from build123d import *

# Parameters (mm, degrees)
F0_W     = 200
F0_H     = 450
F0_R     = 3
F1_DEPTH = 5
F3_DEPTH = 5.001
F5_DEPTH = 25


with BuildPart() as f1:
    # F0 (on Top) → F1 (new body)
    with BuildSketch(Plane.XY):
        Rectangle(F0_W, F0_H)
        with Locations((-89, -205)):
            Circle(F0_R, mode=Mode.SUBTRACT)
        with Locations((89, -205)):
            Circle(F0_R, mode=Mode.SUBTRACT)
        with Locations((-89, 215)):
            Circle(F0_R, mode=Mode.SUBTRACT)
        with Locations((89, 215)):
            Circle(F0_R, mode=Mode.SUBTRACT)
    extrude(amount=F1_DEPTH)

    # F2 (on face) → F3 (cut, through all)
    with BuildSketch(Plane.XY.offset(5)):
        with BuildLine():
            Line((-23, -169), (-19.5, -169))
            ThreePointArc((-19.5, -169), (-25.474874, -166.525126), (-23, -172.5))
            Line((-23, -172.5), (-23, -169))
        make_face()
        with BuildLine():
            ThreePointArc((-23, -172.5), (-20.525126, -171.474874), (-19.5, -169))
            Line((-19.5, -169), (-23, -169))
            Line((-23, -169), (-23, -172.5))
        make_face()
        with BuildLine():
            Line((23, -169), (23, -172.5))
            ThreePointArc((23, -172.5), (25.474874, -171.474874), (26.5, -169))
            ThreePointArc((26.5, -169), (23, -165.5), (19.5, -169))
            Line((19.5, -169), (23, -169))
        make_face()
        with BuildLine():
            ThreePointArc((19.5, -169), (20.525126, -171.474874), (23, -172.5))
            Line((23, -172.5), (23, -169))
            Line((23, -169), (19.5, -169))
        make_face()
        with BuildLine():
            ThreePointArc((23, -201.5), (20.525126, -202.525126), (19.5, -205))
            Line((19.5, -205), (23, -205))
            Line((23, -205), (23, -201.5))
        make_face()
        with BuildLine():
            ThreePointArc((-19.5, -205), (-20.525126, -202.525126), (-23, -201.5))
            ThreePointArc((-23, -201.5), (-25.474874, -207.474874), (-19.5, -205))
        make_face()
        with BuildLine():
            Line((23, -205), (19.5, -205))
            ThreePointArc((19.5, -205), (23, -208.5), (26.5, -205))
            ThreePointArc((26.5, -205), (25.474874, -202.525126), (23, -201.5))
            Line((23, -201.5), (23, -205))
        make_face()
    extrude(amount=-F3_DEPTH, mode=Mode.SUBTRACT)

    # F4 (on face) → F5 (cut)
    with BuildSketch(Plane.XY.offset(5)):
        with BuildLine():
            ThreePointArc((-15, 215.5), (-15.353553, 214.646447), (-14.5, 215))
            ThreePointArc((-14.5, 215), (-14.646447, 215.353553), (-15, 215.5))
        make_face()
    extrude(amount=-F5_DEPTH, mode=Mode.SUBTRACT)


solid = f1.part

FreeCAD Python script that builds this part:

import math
import FreeCAD as App
import Part
import Sketcher
from FreeCAD import Vector


def add_polygon(sketch, points):
    """Adds a closed chain of lines whose ends are joined by coincident constraints."""
    first, n = sketch.GeometryCount, len(points)
    for a, b in zip(points, points[1:] + points[:1]):
        sketch.addGeometry(Part.LineSegment(App.Vector(*a, 0), App.Vector(*b, 0)), False)
    for i in range(n):
        sketch.addConstraint(Sketcher.Constraint("Coincident", first + i, 2, first + (i + 1) % n, 1))

doc = App.newDocument("Part")
body = doc.addObject("PartDesign::Body", "Body")

# Sketch on XY plane
sketch1 = doc.addObject("Sketcher::SketchObject", "Sketch")
body.addObject(sketch1)
sketch1.AttachmentSupport = (doc.XY_Plane, [""])
sketch1.MapMode = "FlatFace"
add_polygon(sketch1, [(-100, 225), (-100, -225), (100, -225), (100, 225)])  # lines 0-3
sketch1.addGeometry(Part.Circle(Vector(-89, -205, 0), Vector(0, 0, 1), 3), False)  # 4
sketch1.addGeometry(Part.Circle(Vector(89, -205, 0), Vector(0, 0, 1), 3), False)  # 5
sketch1.addGeometry(Part.Circle(Vector(-89, 215, 0), Vector(0, 0, 1), 3), False)  # 6
sketch1.addGeometry(Part.Circle(Vector(89, 215, 0), Vector(0, 0, 1), 3), False)  # 7
sketch1.addConstraint([
    Sketcher.Constraint("Vertical", 0),
    Sketcher.Constraint("Horizontal", 1),
    Sketcher.Constraint("Vertical", 2),
    Sketcher.Constraint("Horizontal", 3),
    Sketcher.Constraint("Equal", 4, 5),
    Sketcher.Constraint("Equal", 5, 6),
    Sketcher.Constraint("Equal", 6, 7),
    Sketcher.Constraint("Symmetric", 0, 2, 2, 2, -1, 1),
    Sketcher.Constraint("Symmetric", 4, 3, 5, 3, -2),
    Sketcher.Constraint("Symmetric", 6, 3, 7, 3, -2),
    Sketcher.Constraint("Vertical", 4, 3, 6, 3),
    Sketcher.Constraint("Diameter", 4, 6.0),
    Sketcher.Constraint("DistanceX", 1, 1, 1, 2, 200.0),
    Sketcher.Constraint("DistanceY", 0, 2, 0, 1, 450.0),
    Sketcher.Constraint("DistanceX", 4, 3, -1, 1, 89.0),
    Sketcher.Constraint("DistanceY", 4, 3, -1, 1, 205.0),
    Sketcher.Constraint("DistanceY", -1, 1, 6, 3, 215.0),
])
pad1 = doc.addObject("PartDesign::Pad", "Pad")
body.addObject(pad1)
pad1.Profile = sketch1
pad1.Length = 5

# Sketch on XY plane
sketch2 = doc.addObject("Sketcher::SketchObject", "Sketch001")
body.addObject(sketch2)
sketch2.AttachmentSupport = (doc.XY_Plane, [""])
sketch2.MapMode = "FlatFace"
sketch2.AttachmentOffset = App.Placement(Vector(0, 0, 5), App.Rotation())
sketch2.addGeometry([
    Part.ArcOfCircle(Part.Circle(Vector(-23, -169, 0), Vector(0, 0, 1), 3.5), math.radians(0), math.radians(270)),  # 0
    Part.ArcOfCircle(Part.Circle(Vector(-23, -169, 0), Vector(0, 0, 1), 3.5), math.radians(-90), math.radians(0)),  # 1
    Part.ArcOfCircle(Part.Circle(Vector(23, -169, 0), Vector(0, 0, 1), 3.5), math.radians(-90), math.radians(0)),  # 2
    Part.ArcOfCircle(Part.Circle(Vector(23, -169, 0), Vector(0, 0, 1), 3.5), math.radians(0), math.radians(180)),  # 3
    Part.ArcOfCircle(Part.Circle(Vector(23, -169, 0), Vector(0, 0, 1), 3.5), math.radians(180), math.radians(270)),  # 4
    Part.ArcOfCircle(Part.Circle(Vector(23, -205, 0), Vector(0, 0, 1), 3.5), math.radians(90), math.radians(180)),  # 5
    Part.ArcOfCircle(Part.Circle(Vector(23, -205, 0), Vector(0, 0, 1), 3.5), math.radians(180), math.radians(360)),  # 6
    Part.ArcOfCircle(Part.Circle(Vector(23, -205, 0), Vector(0, 0, 1), 3.5), math.radians(0), math.radians(90)),  # 7
    Part.ArcOfCircle(Part.Circle(Vector(-23, -205, 0), Vector(0, 0, 1), 3.5), math.radians(0), math.radians(90)),  # 8
    Part.ArcOfCircle(Part.Circle(Vector(-23, -205, 0), Vector(0, 0, 1), 3.5), math.radians(90), math.radians(360)),  # 9
], False)
sketch2.addConstraint([
    Sketcher.Constraint("Tangent", 0, 1, 1, 2),
    Sketcher.Constraint("Coincident", 1, 1, 0, 2),
    Sketcher.Constraint("Tangent", 2, 2, 3, 1),
    Sketcher.Constraint("Tangent", 3, 2, 4, 1),
    Sketcher.Constraint("Tangent", 4, 2, 2, 1),
    Sketcher.Constraint("Tangent", 5, 2, 6, 1),
    Sketcher.Constraint("Tangent", 6, 2, 7, 1),
    Sketcher.Constraint("Tangent", 7, 2, 5, 1),
    Sketcher.Constraint("Tangent", 8, 1, 9, 2),
    Sketcher.Constraint("Coincident", 9, 1, 8, 2),
    Sketcher.Constraint("Equal", 1, 2),
    Sketcher.Constraint("Equal", 4, 5),
    Sketcher.Constraint("Equal", 7, 8),
    Sketcher.Constraint("Symmetric", 0, 3, 2, 3, -2),
    Sketcher.Constraint("Symmetric", 5, 3, 8, 3, -2),
    Sketcher.Constraint("Horizontal", 4, 3, 0, 1),
    Sketcher.Constraint("Horizontal", 0, 1, 2, 2),
    Sketcher.Constraint("Horizontal", 2, 2, 3, 2),
    Sketcher.Constraint("Horizontal", 9, 3, 5, 2),
    Sketcher.Constraint("Horizontal", 5, 2, 6, 2),
    Sketcher.Constraint("Horizontal", 6, 2, 8, 1),
    Sketcher.Constraint("Vertical", 4, 3, 5, 3),
    Sketcher.Constraint("Vertical", 9, 3, 1, 1),
    Sketcher.Constraint("Vertical", 7, 3, 4, 2),
    Sketcher.Constraint("Vertical", 4, 2, 7, 2),
    Sketcher.Constraint("Vertical", 1, 1, 9, 1),
    Sketcher.Constraint("Radius", 0, 3.5),
    Sketcher.Constraint("DistanceX", 0, 3, -1, 1, 23.0),
    Sketcher.Constraint("DistanceY", 0, 3, -1, 1, 169.0),
    Sketcher.Constraint("DistanceY", 5, 3, -1, 1, 204.999999),
])
pocket1 = doc.addObject("PartDesign::Pocket", "Pocket")
body.addObject(pocket1)
pocket1.Profile = sketch2
pocket1.Type = "ThroughAll"

# Sketch on XY plane
sketch3 = doc.addObject("Sketcher::SketchObject", "Sketch002")
body.addObject(sketch3)
sketch3.AttachmentSupport = (doc.XY_Plane, [""])
sketch3.MapMode = "FlatFace"
sketch3.AttachmentOffset = App.Placement(Vector(0, 0, 5), App.Rotation())
sketch3.addGeometry([
    Part.ArcOfCircle(Part.Circle(Vector(-15, 215, 0), Vector(0, 0, 1), 0.5), math.radians(90), math.radians(360)),
    Part.ArcOfCircle(Part.Circle(Vector(-15, 215, 0), Vector(0, 0, 1), 0.5), math.radians(0), math.radians(90)),
], False)
sketch3.addConstraint([
    Sketcher.Constraint("Coincident", 0, 1, 1, 2),
    Sketcher.Constraint("Coincident", 1, 1, 0, 2),
    Sketcher.Constraint("Equal", 0, 1),
    Sketcher.Constraint("Horizontal", 0, 3, 1, 1),
    Sketcher.Constraint("Vertical", 1, 3, 0, 1),
    Sketcher.Constraint("Radius", 0, 0.5),
    Sketcher.Constraint("DistanceX", 0, 3, -1, 1, 15.0),
    Sketcher.Constraint("DistanceY", -1, 1, 0, 3, 215.0),
])
pocket2 = doc.addObject("PartDesign::Pocket", "Pocket001")
body.addObject(pocket2)
pocket2.Profile = sketch3
pocket2.Length = 25

doc.recompute()
